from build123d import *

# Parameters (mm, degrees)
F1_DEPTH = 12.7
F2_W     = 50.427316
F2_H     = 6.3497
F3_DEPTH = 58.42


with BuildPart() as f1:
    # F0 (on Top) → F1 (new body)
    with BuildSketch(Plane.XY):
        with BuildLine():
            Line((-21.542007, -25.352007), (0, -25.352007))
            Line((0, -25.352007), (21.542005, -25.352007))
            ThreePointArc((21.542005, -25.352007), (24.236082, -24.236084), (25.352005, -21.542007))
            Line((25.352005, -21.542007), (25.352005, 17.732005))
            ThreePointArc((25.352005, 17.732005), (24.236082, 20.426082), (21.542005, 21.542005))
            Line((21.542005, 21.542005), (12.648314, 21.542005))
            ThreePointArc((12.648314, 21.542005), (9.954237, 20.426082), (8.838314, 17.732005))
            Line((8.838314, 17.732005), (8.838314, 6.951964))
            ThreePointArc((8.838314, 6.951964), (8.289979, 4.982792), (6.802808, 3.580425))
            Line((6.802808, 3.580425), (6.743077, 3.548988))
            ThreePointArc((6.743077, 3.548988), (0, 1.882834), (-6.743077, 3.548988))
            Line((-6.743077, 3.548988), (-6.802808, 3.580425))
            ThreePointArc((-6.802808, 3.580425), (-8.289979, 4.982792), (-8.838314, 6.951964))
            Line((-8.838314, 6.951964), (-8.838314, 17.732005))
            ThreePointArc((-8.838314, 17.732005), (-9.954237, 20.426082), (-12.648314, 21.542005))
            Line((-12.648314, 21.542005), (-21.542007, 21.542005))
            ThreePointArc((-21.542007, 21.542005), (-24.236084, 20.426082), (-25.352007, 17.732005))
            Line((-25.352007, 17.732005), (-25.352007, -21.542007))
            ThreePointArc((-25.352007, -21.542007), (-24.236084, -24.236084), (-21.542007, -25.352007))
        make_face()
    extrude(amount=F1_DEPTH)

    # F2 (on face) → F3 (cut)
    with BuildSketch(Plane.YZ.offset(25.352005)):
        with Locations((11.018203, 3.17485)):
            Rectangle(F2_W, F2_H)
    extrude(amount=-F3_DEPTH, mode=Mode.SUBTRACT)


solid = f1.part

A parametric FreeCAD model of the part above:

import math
import FreeCAD as App
import Part
import Sketcher

V = App.Vector
Q = App.Units.Quantity

doc = App.newDocument("Part")
body = doc.addObject("PartDesign::Body", "Body")

# Sketch on XY plane
sketch1 = doc.addObject("Sketcher::SketchObject", "Sketch")
body.addObject(sketch1)
sketch1.AttachmentSupport = (doc.XY_Plane, [""])
sketch1.MapMode = "FlatFace"
sketch1.addGeometry([
    Part.LineSegment(V(-21.542007, -25.352007, 0), V(21.542005, -25.352007, 0)),  # 0
    Part.ArcOfCircle(Part.Circle(V(21.542006, -21.542008, 0), V(0, 0, 1), 3.809999), math.radians(-90.000008), math.radians(0.000008)),  # 1
    Part.LineSegment(V(25.352005, -21.542007, 0), V(25.352005, 17.732005, 0)),  # 2
    Part.ArcOfCircle(Part.Circle(V(21.542006, 17.732006, 0), V(0, 0, 1), 3.809999), math.radians(-0.000008), math.radians(90.000008)),  # 3
    Part.LineSegment(V(21.542005, 21.542005, 0), V(12.648314, 21.542005, 0)),  # 4
    Part.ArcOfCircle(Part.Circle(V(12.648313, 17.732006, 0), V(0, 0, 1), 3.809999), math.radians(89.999992), math.radians(180.000008)),  # 5
    Part.LineSegment(V(8.838314, 17.732005, 0), V(8.838314, 6.951964, 0)),  # 6
    Part.ArcOfCircle(Part.Circle(V(5.02831, 6.951966, 0), V(0, 0, 1), 3.810004), math.radians(-62.241419), math.radians(-0.00003)),  # 7
    Part.LineSegment(V(6.802808, 3.580425, 0), V(6.743077, 3.548988, 0)),  # 8
    Part.ArcOfCircle(Part.Circle(V(0, 16.360834, 0), V(0, 0, 1), 14.478), math.radians(-117.75854), math.radians(-62.24146)),  # 9
    Part.LineSegment(V(-6.743077, 3.548988, 0), V(-6.802808, 3.580425, 0)),  # 10
    Part.ArcOfCircle(Part.Circle(V(-5.02831, 6.951966, 0), V(0, 0, 1), 3.810004), math.radians(-179.99997), math.radians(-117.758581)),  # 11
    Part.LineSegment(V(-8.838314, 6.951964, 0), V(-8.838314, 17.732005, 0)),  # 12
    Part.ArcOfCircle(Part.Circle(V(-12.648313, 17.732006, 0), V(0, 0, 1), 3.809999), math.radians(-0.000008), math.radians(90.000008)),  # 13
    Part.LineSegment(V(-12.648314, 21.542005, 0), V(-21.542007, 21.542005, 0)),  # 14
    Part.ArcOfCircle(Part.Circle(V(-21.542008, 17.732006, 0), V(0, 0, 1), 3.809999), math.radians(89.999992), math.radians(180.000008)),  # 15
    Part.LineSegment(V(-25.352007, 17.732005, 0), V(-25.352007, -21.542007, 0)),  # 16
    Part.ArcOfCircle(Part.Circle(V(-21.542008, -21.542008, 0), V(0, 0, 1), 3.809999), math.radians(179.999992), math.radians(270.000008)),  # 17
], False)
sketch1.addConstraint([
    Sketcher.Constraint("Tangent", 0, 2, 1, 1),
    Sketcher.Constraint("Tangent", 1, 2, 2, 1),
    Sketcher.Constraint("Tangent", 2, 2, 3, 1),
    Sketcher.Constraint("Tangent", 3, 2, 4, 1),
    Sketcher.Constraint("Tangent", 4, 2, 5, 1),
    Sketcher.Constraint("Tangent", 5, 2, 6, 1),
    Sketcher.Constraint("Tangent", 6, 2, 7, 2),
    Sketcher.Constraint("Coincident", 7, 1, 8, 1),
    Sketcher.Constraint("Coincident", 8, 2, 9, 2),
    Sketcher.Constraint("Coincident", 9, 1, 10, 1),
    Sketcher.Constraint("Coincident", 10, 2, 11, 2),
    Sketcher.Constraint("Tangent", 11, 1, 12, 1),
    Sketcher.Constraint("Tangent", 12, 2, 13, 1),
    Sketcher.Constraint("Tangent", 13, 2, 14, 1),
    Sketcher.Constraint("Tangent", 14, 2, 15, 1),
    Sketcher.Constraint("Tangent", 15, 2, 16, 1),
    Sketcher.Constraint("Tangent", 16, 2, 17, 1),
    Sketcher.Constraint("Tangent", 17, 2, 0, 1),
    Sketcher.Constraint("Horizontal", 0),
    Sketcher.Constraint("Vertical", 2),
    Sketcher.Constraint("Horizontal", 4),
    Sketcher.Constraint("Vertical", 6),
    Sketcher.Constraint("Vertical", 12),
    Sketcher.Constraint("Horizontal", 14),
    Sketcher.Constraint("Vertical", 16),
    Sketcher.Constraint("Equal", 1, 3),
    Sketcher.Constraint("Equal", 3, 5),
    Sketcher.Constraint("Equal", 7, 11),
    Sketcher.Constraint("Equal", 5, 13),
    Sketcher.Constraint("Equal", 13, 15),
    Sketcher.Constraint("Equal", 15, 17),
    Sketcher.Constraint("Symmetric", 7, 3, 11, 3, -2),
    Sketcher.Constraint("Symmetric", 3, 3, 15, 3, -2),
    Sketcher.Constraint("Symmetric", 8, 2, 9, 1, -2),
    Sketcher.Constraint("Horizontal", 7, 1, 10, 2),
    Sketcher.Constraint("Radius", 1, Q("0.15 in")),
    Sketcher.Constraint("Radius", 7, Q("0.1500002 in")),
    Sketcher.Constraint("Radius", 9, Q("0.57 in")),
    Sketcher.Constraint("Distance", 8, Q("0.067499 mm")),
    Sketcher.Constraint("DistanceX", 4, 2, 4, 1, Q("8.893691 mm")),
    Sketcher.Constraint("DistanceY", 6, 2, 6, 1, Q("10.780041 mm")),
    Sketcher.Constraint("DistanceX", 7, 3, 7, 1, Q("1.774498 mm")),
    Sketcher.Constraint("DistanceX", 0, 1, 0, 2, Q("43.084012 mm")),
    Sketcher.Constraint("DistanceY", 2, 1, 2, 2, Q("39.274012 mm")),
    Sketcher.Constraint("DistanceY", -1, 1, 8, 2, Q("3.548988 mm")),
    Sketcher.Constraint("DistanceY", 7, 3, 9, 3, Q("9.408868 mm")),
])
pad1 = doc.addObject("PartDesign::Pad", "Pad")
body.addObject(pad1)
pad1.Profile = sketch1
pad1.Length = Q("0.5 in")

# Sketch on YZ plane
sketch2 = doc.addObject("Sketcher::SketchObject", "Sketch001")
body.addObject(sketch2)
sketch2.AttachmentSupport = (doc.YZ_Plane, [""])
sketch2.MapMode = "FlatFace"
sketch2.AttachmentOffset = App.Placement(V(0, 0, 25.352005), App.Rotation())
sketch2.addGeometry([
    Part.LineSegment(V(-14.195455, 6.3497, 0), V(-14.195455, 0, 0)),
    Part.LineSegment(V(-14.195455, 0, 0), V(36.231861, 0, 0)),
    Part.LineSegment(V(36.231861, 0, 0), V(36.231861, 6.3497, 0)),
    Part.LineSegment(V(36.231861, 6.3497, 0), V(-14.195455, 6.3497, 0)),
], False)
sketch2.addConstraint([
    Sketcher.Constraint("Coincident", 0, 2, 1, 1),
    Sketcher.Constraint("Coincident", 1, 2, 2, 1),
    Sketcher.Constraint("Coincident", 2, 2, 3, 1),
    Sketcher.Constraint("Coincident", 3, 2, 0, 1),
    Sketcher.Constraint("Vertical", 0),
    Sketcher.Constraint("Horizontal", 1),
    Sketcher.Constraint("Vertical", 2),
    Sketcher.Constraint("Horizontal", 3),
    Sketcher.Constraint("PointOnObject", 0, 2, -1),
    Sketcher.Constraint("DistanceY", 0, 2, 0, 1, Q("6.3497 mm")),
    Sketcher.Constraint("DistanceX", 1, 1, 1, 2, Q("50.427316 mm")),
    Sketcher.Constraint("DistanceX", -1, 1, 1, 2, Q("36.231861 mm")),
])
pocket1 = doc.addObject("PartDesign::Pocket", "Pocket")
body.addObject(pocket1)
pocket1.Profile = sketch2
pocket1.Length = Q("2.3 in")

doc.recompute()
